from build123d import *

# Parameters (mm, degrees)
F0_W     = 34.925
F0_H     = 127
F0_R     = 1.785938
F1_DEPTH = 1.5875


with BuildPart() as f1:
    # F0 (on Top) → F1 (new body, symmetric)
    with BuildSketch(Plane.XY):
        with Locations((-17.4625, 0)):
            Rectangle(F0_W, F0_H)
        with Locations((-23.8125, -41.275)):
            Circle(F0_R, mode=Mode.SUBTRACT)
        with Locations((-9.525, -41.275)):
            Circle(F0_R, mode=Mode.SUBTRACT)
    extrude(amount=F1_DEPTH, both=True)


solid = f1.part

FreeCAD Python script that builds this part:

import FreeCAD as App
import Part
import Sketcher
Q = App.Units.Quantity


def add_polygon(sketch, points):
    """Adds a closed chain of lines whose ends are joined by coincident constraints."""
    first, n = sketch.GeometryCount, len(points)
    for a, b in zip(points, points[1:] + points[:1]):
        sketch.addGeometry(Part.LineSegment(App.Vector(*a, 0), App.Vector(*b, 0)), False)
    for i in range(n):
        sketch.addConstraint(Sketcher.Constraint("Coincident", first + i, 2, first + (i + 1) % n, 1))

doc = App.newDocument("Part")
body = doc.addObject("PartDesign::Body", "Body")

sketch1 = body.newObject("Sketcher::SketchObject", "Sketch")
sketch1.AttachmentSupport = (doc.getObject("XY_Plane"), [""])
sketch1.MapMode = "FlatFace"
add_polygon(sketch1, [(-34.9, 63.5), (-34.9, -63.5), (0, -63.5), (0, 63.5)])
sketch1.addGeometry(Part.Circle(App.Vector(-23.8, -41.3, 0), App.Vector(0, 0, 1), 1.8), False)
sketch1.addGeometry(Part.Circle(App.Vector(-9.5, -41.3, 0), App.Vector(0, 0, 1), 1.8), False)
sketch1.addConstraint([
    Sketcher.Constraint("Vertical", 0),
    Sketcher.Constraint("Horizontal", 1),
    Sketcher.Constraint("Vertical", 2),
    Sketcher.Constraint("Horizontal", 3),
    Sketcher.Constraint("Equal", 4, 5),
    Sketcher.Constraint("Symmetric", 1, 2, 2, 2, -1, 1),
    Sketcher.Constraint("Horizontal", 4, 3, 5, 3),
    Sketcher.Constraint("DistanceY", 0, 2, 0, 1, Q("5 in")),
    Sketcher.Constraint("Diameter", 4, Q("0.140625 in")),
    Sketcher.Constraint("DistanceX", 0, 2, 5, 3, Q("1 in")),
    Sketcher.Constraint("DistanceX", 1, 1, 1, 2, Q("1.375 in")),
    Sketcher.Constraint("DistanceX", 4, 3, -1, 1, Q("0.9375 in")),
    Sketcher.Constraint("DistanceY", 4, 3, -1, 1, Q("1.625 in")),
])
pad1 = body.newObject("PartDesign::Pad", "Pad")
pad1.Profile = sketch1
pad1.Length = Q("0.125 in")
pad1.Midplane = True

doc.recompute()
